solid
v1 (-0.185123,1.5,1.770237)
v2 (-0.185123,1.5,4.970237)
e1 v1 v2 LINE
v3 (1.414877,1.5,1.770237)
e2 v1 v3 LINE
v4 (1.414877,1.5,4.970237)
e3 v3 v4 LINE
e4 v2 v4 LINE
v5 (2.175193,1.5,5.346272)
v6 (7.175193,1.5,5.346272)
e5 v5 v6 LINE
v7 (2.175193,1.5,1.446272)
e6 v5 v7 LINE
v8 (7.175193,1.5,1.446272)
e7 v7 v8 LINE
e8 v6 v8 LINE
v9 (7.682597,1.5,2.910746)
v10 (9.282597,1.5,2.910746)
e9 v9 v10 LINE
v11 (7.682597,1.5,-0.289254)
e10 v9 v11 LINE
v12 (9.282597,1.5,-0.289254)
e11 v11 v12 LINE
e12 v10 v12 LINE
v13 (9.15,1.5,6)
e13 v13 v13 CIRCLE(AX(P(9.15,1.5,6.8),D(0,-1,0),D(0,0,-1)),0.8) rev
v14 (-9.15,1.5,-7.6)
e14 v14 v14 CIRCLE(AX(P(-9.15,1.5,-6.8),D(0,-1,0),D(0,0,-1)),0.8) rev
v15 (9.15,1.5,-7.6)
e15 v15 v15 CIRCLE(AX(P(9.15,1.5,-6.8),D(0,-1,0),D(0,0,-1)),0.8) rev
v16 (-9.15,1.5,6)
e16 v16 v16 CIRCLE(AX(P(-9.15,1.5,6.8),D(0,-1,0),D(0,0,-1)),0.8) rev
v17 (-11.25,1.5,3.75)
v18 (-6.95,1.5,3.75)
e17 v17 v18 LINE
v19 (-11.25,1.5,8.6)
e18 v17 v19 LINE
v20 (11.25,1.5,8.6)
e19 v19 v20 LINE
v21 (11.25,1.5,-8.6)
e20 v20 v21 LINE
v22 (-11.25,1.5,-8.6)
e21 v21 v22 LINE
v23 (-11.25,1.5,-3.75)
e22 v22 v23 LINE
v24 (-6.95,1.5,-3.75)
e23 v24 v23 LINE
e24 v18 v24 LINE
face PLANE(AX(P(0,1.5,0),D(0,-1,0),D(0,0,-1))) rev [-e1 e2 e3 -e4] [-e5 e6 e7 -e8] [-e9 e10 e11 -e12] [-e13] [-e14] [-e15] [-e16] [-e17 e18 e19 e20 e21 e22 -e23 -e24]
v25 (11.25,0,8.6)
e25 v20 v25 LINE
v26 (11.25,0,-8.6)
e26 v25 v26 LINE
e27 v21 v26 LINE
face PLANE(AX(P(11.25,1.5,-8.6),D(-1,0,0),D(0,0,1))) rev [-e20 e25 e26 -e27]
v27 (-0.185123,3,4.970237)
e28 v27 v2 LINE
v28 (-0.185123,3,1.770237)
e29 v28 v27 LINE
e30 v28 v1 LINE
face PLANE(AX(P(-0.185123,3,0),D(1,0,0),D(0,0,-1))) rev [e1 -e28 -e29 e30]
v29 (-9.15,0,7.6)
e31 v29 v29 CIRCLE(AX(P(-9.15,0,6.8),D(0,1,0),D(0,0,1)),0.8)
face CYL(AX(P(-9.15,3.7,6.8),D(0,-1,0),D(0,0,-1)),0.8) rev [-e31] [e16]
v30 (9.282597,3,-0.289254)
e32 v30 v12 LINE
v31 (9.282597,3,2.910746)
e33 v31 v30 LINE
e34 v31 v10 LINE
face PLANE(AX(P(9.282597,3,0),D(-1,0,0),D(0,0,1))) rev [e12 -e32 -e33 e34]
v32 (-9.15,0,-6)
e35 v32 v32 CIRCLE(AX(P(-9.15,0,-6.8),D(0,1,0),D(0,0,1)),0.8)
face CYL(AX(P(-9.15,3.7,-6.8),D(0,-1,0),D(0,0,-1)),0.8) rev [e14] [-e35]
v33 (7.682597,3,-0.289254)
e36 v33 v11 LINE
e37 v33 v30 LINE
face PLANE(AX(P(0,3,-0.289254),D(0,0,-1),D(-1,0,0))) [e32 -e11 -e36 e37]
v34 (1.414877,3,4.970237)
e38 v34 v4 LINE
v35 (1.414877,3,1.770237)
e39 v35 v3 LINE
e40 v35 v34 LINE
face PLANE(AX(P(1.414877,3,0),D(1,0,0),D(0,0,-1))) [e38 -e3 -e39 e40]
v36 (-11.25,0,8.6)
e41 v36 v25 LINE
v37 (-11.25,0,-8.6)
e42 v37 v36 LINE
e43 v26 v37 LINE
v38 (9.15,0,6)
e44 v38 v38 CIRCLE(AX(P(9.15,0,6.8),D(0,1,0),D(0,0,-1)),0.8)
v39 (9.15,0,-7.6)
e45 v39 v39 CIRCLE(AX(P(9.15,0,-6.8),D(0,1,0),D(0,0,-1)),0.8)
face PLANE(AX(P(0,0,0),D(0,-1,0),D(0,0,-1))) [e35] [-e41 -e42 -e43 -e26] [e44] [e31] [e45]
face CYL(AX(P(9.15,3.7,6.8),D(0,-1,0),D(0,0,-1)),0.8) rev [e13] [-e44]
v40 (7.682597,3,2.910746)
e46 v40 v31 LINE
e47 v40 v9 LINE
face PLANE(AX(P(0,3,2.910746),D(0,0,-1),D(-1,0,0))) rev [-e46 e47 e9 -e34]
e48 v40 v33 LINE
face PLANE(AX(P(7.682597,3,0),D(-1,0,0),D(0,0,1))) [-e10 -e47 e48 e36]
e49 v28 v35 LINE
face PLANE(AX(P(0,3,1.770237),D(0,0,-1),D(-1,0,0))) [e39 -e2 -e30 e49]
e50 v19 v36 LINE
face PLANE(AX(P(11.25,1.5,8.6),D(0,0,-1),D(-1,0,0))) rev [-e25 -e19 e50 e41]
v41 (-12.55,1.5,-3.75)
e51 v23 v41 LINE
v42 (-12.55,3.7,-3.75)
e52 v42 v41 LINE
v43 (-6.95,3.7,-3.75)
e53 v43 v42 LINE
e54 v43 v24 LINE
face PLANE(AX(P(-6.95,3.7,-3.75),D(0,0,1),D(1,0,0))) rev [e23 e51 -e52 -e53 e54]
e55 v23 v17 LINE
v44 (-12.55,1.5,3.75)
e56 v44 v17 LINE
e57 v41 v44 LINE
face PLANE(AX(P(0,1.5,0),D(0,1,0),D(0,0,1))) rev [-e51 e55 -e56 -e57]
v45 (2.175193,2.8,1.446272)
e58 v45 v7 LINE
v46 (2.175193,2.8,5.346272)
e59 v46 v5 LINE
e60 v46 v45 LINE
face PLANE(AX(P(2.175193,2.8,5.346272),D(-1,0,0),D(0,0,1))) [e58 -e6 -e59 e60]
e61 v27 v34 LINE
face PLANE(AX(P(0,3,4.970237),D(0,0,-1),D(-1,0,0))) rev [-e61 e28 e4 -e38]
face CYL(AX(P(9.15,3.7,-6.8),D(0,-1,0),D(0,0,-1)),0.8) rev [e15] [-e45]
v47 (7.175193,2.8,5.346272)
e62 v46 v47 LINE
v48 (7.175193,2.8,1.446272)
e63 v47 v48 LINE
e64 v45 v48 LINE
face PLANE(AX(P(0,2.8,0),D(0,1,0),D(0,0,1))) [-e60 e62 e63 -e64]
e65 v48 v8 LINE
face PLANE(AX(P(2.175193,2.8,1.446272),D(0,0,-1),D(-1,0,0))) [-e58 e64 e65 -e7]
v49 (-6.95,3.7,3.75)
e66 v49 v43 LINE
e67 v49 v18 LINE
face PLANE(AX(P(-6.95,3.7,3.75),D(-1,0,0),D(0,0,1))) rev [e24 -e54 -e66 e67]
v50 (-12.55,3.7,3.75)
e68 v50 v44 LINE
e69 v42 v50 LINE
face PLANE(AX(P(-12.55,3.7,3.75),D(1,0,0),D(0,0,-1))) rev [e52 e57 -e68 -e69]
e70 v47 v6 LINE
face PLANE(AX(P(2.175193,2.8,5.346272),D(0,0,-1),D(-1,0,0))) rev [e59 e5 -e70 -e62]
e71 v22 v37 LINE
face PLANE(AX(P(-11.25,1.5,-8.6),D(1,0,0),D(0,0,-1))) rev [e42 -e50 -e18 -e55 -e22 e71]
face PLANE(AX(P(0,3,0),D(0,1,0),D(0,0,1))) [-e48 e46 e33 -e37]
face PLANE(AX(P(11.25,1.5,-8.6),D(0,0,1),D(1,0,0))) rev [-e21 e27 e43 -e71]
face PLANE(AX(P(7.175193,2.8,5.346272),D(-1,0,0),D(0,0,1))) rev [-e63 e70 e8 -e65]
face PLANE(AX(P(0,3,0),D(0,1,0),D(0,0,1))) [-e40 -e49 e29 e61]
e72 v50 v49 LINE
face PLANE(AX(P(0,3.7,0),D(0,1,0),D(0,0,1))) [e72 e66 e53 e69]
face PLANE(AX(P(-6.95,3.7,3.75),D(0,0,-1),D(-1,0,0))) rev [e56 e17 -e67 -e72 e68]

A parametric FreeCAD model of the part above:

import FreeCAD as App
import Part
import Sketcher
Q = App.Units.Quantity

doc = App.newDocument("Part")
body = doc.addObject("PartDesign::Body", "Body")

# Sketch on XZ plane
sketch1 = body.newObject("Sketcher::SketchObject", "Sketch")
sketch1.AttachmentSupport = (doc.getObject("XZ_Plane"), [""])
sketch1.MapMode = "FlatFace"
sketch1.addGeometry([
    Part.LineSegment(App.Vector(-11.25, -8.6, 0), App.Vector(-11.25, 8.6, 0)),
    Part.LineSegment(App.Vector(-11.25, 8.6, 0), App.Vector(11.25, 8.6, 0)),
    Part.LineSegment(App.Vector(11.25, 8.6, 0), App.Vector(11.25, -8.6, 0)),
    Part.LineSegment(App.Vector(11.25, -8.6, 0), App.Vector(-11.25, -8.6, 0)),
], False)
sketch1.addConstraint([
    Sketcher.Constraint("Coincident", 0, 2, 1, 1),
    Sketcher.Constraint("Coincident", 1, 2, 2, 1),
    Sketcher.Constraint("Coincident", 2, 2, 3, 1),
    Sketcher.Constraint("Coincident", 3, 2, 0, 1),
    Sketcher.Constraint("Vertical", 0),
    Sketcher.Constraint("Horizontal", 1),
    Sketcher.Constraint("Vertical", 2),
    Sketcher.Constraint("Horizontal", 3),
    Sketcher.Constraint("Symmetric", 0, 2, 2, 2, -1, 1),
    Sketcher.Constraint("DistanceX", 1, 1, 1, 2, Q("22.5 mm")),
    Sketcher.Constraint("DistanceY", 0, 1, 0, 2, Q("17.2 mm")),
])
pad1 = body.newObject("PartDesign::Pad", "Pad")
pad1.Profile = sketch1
pad1.Length = 1.5
pad1.Reversed = True

# Sketch on XZ plane
sketch2 = body.newObject("Sketcher::SketchObject", "Sketch001")
sketch2.AttachmentSupport = (doc.getObject("XZ_Plane"), [""])
sketch2.MapMode = "FlatFace"
sketch2.AttachmentOffset = App.Placement(App.Vector(0, 0, -1.5), App.Rotation())
sketch2.addGeometry([
    Part.LineSegment(App.Vector(-0.185123, 1.770237, 0), App.Vector(-0.185123, 4.970237, 0)),  # 0
    Part.LineSegment(App.Vector(-0.185123, 4.970237, 0), App.Vector(1.414877, 4.970237, 0)),  # 1
    Part.LineSegment(App.Vector(1.414877, 4.970237, 0), App.Vector(1.414877, 1.770237, 0)),  # 2
    Part.LineSegment(App.Vector(1.414877, 1.770237, 0), App.Vector(-0.185123, 1.770237, 0)),  # 3
    Part.LineSegment(App.Vector(7.682597, -0.289254, 0), App.Vector(7.682597, 2.910746, 0)),  # 4
    Part.LineSegment(App.Vector(7.682597, 2.910746, 0), App.Vector(9.282597, 2.910746, 0)),  # 5
    Part.LineSegment(App.Vector(9.282597, 2.910746, 0), App.Vector(9.282597, -0.289254, 0)),  # 6
    Part.LineSegment(App.Vector(9.282597, -0.289254, 0), App.Vector(7.682597, -0.289254, 0)),  # 7
], False)
sketch2.addConstraint([
    Sketcher.Constraint("Coincident", 0, 2, 1, 1),
    Sketcher.Constraint("Coincident", 1, 2, 2, 1),
    Sketcher.Constraint("Coincident", 2, 2, 3, 1),
    Sketcher.Constraint("Coincident", 3, 2, 0, 1),
    Sketcher.Constraint("Coincident", 4, 2, 5, 1),
    Sketcher.Constraint("Coincident", 5, 2, 6, 1),
    Sketcher.Constraint("Coincident", 6, 2, 7, 1),
    Sketcher.Constraint("Coincident", 7, 2, 4, 1),
    Sketcher.Constraint("Vertical", 0),
    Sketcher.Constraint("Horizontal", 1),
    Sketcher.Constraint("Vertical", 2),
    Sketcher.Constraint("Horizontal", 3),
    Sketcher.Constraint("Vertical", 4),
    Sketcher.Constraint("Horizontal", 5),
    Sketcher.Constraint("Vertical", 6),
    Sketcher.Constraint("Horizontal", 7),
    Sketcher.Constraint("Equal", 3, 5),
    Sketcher.Constraint("Equal", 2, 4),
    Sketcher.Constraint("DistanceX", 1, 1, 1, 2, Q("1.6 mm")),
    Sketcher.Constraint("DistanceY", 0, 1, 0, 2, Q("3.2 mm")),
    Sketcher.Constraint("DistanceX", 2, 2, 4, 2, Q("6.26772 mm")),
    Sketcher.Constraint("DistanceY", 2, 2, 4, 2, Q("1.140509 mm")),
    Sketcher.Constraint("DistanceX", 0, 2, -1, 1, Q("0.185123 mm")),
    Sketcher.Constraint("DistanceY", -1, 1, 0, 2, Q("4.970237 mm")),
])
pad2 = body.newObject("PartDesign::Pad", "Pad001")
pad2.Profile = sketch2
pad2.Length = 1.5
pad2.Reversed = True

# Sketch on XZ plane
sketch3 = body.newObject("Sketcher::SketchObject", "Sketch002")
sketch3.AttachmentSupport = (doc.getObject("XZ_Plane"), [""])
sketch3.MapMode = "FlatFace"
sketch3.AttachmentOffset = App.Placement(App.Vector(0, 0, -1.5), App.Rotation())
sketch3.addGeometry([
    Part.LineSegment(App.Vector(2.175193, 1.446272, 0), App.Vector(2.175193, 5.346272, 0)),
    Part.LineSegment(App.Vector(2.175193, 5.346272, 0), App.Vector(7.175193, 5.346272, 0)),
    Part.LineSegment(App.Vector(7.175193, 5.346272, 0), App.Vector(7.175193, 1.446272, 0)),
    Part.LineSegment(App.Vector(7.175193, 1.446272, 0), App.Vector(2.175193, 1.446272, 0)),
], False)
sketch3.addConstraint([
    Sketcher.Constraint("Coincident", 0, 2, 1, 1),
    Sketcher.Constraint("Coincident", 1, 2, 2, 1),
    Sketcher.Constraint("Coincident", 2, 2, 3, 1),
    Sketcher.Constraint("Coincident", 3, 2, 0, 1),
    Sketcher.Constraint("Vertical", 0),
    Sketcher.Constraint("Horizontal", 1),
    Sketcher.Constraint("Vertical", 2),
    Sketcher.Constraint("Horizontal", 3),
    Sketcher.Constraint("DistanceX", 1, 1, 1, 2, Q("5 mm")),
    Sketcher.Constraint("DistanceY", 0, 1, 0, 2, Q("3.9 mm")),
    Sketcher.Constraint("DistanceX", -1, 1, 0, 2, Q("2.175193 mm")),
    Sketcher.Constraint("DistanceY", -1, 1, 0, 2, Q("5.346272 mm")),
])
pad3 = body.newObject("PartDesign::Pad", "Pad002")
pad3.Profile = sketch3
pad3.Length = 1.3
pad3.Reversed = True

# Sketch on XZ plane
sketch4 = body.newObject("Sketcher::SketchObject", "Sketch003")
sketch4.AttachmentSupport = (doc.getObject("XZ_Plane"), [""])
sketch4.MapMode = "FlatFace"
sketch4.AttachmentOffset = App.Placement(App.Vector(0, 0, -1.5), App.Rotation())
sketch4.addGeometry([
    Part.LineSegment(App.Vector(-12.55, -3.75, 0), App.Vector(-12.55, 3.75, 0)),
    Part.LineSegment(App.Vector(-12.55, 3.75, 0), App.Vector(-6.95, 3.75, 0)),
    Part.LineSegment(App.Vector(-6.95, 3.75, 0), App.Vector(-6.95, -3.75, 0)),
    Part.LineSegment(App.Vector(-6.95, -3.75, 0), App.Vector(-12.55, -3.75, 0)),
], False)
sketch4.addConstraint([
    Sketcher.Constraint("Coincident", 0, 2, 1, 1),
    Sketcher.Constraint("Coincident", 1, 2, 2, 1),
    Sketcher.Constraint("Coincident", 2, 2, 3, 1),
    Sketcher.Constraint("Coincident", 3, 2, 0, 1),
    Sketcher.Constraint("Vertical", 0),
    Sketcher.Constraint("Horizontal", 1),
    Sketcher.Constraint("Vertical", 2),
    Sketcher.Constraint("Horizontal", 3),
    Sketcher.Constraint("DistanceX", 1, 1, 1, 2, Q("5.6 mm")),
    Sketcher.Constraint("DistanceY", 0, 1, 0, 2, Q("7.5 mm")),
    Sketcher.Constraint("DistanceX", 0, 2, -1, 1, Q("12.55 mm")),
    Sketcher.Constraint("DistanceY", -1, 1, 0, 2, Q("3.75 mm")),
])
pad4 = body.newObject("PartDesign::Pad", "Pad003")
pad4.Profile = sketch4
pad4.Length = 2.2
pad4.Reversed = True

# Sketch on XZ plane
sketch5 = body.newObject("Sketcher::SketchObject", "Sketch004")
sketch5.AttachmentSupport = (doc.getObject("XZ_Plane"), [""])
sketch5.MapMode = "FlatFace"
sketch5.addGeometry([
    Part.Circle(App.Vector(-9.15, -6.8, 0), App.Vector(0, 0, 1), 0.8),
    Part.Circle(App.Vector(-9.15, 6.8, 0), App.Vector(0, 0, 1), 0.8),
    Part.Circle(App.Vector(9.15, 6.8, 0), App.Vector(0, 0, 1), 0.8),
    Part.Circle(App.Vector(9.15, -6.8, 0), App.Vector(0, 0, 1), 0.8),
], False)
sketch5.addConstraint([
    Sketcher.Constraint("Equal", 0, 1),
    Sketcher.Constraint("Equal", 1, 2),
    Sketcher.Constraint("Equal", 2, 3),
    Sketcher.Constraint("Symmetric", 0, 3, 2, 3, -1, 1),
    Sketcher.Constraint("Symmetric", 1, 3, 3, 3, -1, 1),
    Sketcher.Constraint("Symmetric", 1, 3, 2, 3, -2),
    Sketcher.Constraint("Diameter", 0, Q("1.6 mm")),
    Sketcher.Constraint("DistanceY", 0, 3, -1, 1, Q("6.8 mm")),
    Sketcher.Constraint("DistanceX", 1, 3, 2, 3, Q("18.3 mm")),
])
pocket1 = body.newObject("PartDesign::Pocket", "Pocket")
pocket1.Profile = sketch5
pocket1.Type = "ThroughAll"

doc.recompute()
